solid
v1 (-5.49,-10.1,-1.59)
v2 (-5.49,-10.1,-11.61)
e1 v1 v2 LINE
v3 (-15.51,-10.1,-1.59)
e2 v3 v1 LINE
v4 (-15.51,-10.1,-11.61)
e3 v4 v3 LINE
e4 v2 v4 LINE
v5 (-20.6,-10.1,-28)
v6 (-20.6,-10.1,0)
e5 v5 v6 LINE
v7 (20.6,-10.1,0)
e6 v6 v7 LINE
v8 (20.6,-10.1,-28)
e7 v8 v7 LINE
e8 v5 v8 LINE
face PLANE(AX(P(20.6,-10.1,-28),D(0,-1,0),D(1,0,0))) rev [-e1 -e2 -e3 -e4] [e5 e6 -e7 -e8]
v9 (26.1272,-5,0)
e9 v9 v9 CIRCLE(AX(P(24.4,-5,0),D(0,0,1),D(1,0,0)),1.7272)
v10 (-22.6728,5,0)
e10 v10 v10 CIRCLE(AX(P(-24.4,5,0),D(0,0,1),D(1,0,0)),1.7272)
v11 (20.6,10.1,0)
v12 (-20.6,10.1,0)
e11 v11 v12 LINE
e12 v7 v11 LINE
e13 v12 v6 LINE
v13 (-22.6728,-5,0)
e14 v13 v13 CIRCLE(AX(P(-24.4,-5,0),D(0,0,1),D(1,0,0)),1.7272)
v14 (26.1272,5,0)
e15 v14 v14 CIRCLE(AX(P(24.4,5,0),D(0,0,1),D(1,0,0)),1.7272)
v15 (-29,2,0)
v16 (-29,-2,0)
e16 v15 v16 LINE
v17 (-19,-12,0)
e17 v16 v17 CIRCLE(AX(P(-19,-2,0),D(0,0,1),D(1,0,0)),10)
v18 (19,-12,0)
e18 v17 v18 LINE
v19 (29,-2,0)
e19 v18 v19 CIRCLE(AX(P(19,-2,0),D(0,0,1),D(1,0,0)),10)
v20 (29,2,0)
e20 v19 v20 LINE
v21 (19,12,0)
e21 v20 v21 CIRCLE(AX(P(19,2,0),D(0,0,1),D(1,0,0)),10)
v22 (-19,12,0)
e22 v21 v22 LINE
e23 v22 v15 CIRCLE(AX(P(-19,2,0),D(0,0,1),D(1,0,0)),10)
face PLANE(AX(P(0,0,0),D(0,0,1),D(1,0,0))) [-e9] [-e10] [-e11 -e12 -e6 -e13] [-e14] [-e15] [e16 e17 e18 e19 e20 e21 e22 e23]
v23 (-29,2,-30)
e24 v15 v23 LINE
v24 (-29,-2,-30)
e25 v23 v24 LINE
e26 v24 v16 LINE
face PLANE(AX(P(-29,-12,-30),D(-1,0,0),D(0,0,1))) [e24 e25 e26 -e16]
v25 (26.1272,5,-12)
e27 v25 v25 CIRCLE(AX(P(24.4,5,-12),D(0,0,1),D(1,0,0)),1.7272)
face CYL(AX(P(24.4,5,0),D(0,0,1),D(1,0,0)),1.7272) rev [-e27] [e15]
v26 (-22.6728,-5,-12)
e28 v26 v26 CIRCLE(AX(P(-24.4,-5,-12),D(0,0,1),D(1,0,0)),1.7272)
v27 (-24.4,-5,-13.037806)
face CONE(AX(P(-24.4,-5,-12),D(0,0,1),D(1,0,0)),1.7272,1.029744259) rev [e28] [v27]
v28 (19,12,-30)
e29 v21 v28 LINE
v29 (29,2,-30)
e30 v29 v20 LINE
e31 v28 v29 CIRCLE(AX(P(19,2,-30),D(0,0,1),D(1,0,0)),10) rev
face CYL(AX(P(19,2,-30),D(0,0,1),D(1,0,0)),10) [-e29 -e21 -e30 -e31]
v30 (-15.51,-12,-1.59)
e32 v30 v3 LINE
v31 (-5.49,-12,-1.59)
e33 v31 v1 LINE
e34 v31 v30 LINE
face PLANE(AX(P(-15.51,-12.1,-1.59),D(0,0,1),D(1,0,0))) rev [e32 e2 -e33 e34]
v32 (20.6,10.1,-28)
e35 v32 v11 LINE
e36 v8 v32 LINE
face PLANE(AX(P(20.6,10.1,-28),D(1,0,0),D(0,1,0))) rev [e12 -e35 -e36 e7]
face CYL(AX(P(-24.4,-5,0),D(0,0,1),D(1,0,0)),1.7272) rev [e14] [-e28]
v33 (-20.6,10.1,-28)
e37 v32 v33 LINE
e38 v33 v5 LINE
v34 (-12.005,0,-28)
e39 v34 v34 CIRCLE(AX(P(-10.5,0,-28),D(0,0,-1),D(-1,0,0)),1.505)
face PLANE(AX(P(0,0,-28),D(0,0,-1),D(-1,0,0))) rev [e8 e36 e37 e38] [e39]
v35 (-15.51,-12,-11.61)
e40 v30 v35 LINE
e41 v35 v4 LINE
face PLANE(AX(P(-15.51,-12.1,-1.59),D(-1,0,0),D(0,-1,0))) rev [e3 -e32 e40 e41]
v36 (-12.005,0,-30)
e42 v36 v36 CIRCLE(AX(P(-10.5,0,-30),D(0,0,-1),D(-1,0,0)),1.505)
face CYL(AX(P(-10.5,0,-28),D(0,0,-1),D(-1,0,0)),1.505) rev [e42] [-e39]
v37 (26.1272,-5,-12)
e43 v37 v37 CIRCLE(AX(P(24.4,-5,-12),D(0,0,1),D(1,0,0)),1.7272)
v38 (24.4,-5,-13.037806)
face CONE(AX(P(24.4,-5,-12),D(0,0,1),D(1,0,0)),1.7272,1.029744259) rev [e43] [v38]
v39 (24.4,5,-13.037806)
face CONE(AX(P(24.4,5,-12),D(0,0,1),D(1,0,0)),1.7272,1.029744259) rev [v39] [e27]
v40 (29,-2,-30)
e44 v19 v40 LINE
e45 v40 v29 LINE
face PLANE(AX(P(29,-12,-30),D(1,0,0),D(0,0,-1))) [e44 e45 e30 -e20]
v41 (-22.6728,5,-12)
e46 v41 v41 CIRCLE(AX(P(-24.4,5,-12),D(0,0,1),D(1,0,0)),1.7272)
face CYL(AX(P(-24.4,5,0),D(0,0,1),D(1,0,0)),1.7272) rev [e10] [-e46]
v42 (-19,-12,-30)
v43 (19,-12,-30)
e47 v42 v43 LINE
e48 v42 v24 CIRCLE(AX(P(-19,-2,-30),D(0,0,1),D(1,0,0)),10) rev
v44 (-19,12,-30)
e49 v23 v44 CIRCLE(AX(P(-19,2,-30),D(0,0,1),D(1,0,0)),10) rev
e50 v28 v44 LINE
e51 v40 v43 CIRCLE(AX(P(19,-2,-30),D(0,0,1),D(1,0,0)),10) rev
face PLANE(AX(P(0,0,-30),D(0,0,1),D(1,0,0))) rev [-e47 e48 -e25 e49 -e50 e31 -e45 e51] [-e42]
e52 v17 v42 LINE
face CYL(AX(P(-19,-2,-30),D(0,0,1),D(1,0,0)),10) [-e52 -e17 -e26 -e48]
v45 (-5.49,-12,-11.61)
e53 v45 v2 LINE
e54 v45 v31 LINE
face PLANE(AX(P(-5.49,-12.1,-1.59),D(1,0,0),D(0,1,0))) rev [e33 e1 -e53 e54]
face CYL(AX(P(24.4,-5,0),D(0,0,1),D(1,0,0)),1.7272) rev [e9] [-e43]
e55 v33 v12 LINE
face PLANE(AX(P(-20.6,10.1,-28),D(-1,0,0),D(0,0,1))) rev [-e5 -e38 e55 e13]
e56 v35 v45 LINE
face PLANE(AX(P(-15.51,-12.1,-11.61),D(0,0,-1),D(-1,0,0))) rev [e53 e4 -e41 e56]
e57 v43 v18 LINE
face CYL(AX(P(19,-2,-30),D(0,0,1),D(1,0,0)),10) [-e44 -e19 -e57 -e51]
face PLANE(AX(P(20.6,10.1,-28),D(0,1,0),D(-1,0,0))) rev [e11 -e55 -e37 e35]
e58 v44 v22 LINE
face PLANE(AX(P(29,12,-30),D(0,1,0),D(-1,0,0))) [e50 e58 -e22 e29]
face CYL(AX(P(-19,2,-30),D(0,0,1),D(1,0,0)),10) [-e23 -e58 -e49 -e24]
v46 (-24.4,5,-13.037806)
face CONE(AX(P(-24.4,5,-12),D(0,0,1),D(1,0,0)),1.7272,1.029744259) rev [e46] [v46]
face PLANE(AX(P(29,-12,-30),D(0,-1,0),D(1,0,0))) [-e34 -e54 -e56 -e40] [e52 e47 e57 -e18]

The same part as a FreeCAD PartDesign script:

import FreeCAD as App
import Part
import Sketcher
from FreeCAD import Vector


def edges_at(feature, points):
    """Names of the edges that pass closest to the given points."""
    edges = feature.Shape.Edges
    near = lambda p: min(range(len(edges)), key=lambda i: edges[i].distToShape(Part.Vertex(*p))[0])
    return sorted({f"Edge{near(p) + 1}" for p in points})

doc = App.newDocument("Part")
body = doc.addObject("PartDesign::Body", "Body")

# Sketch on XY plane
sketch1 = doc.addObject("Sketcher::SketchObject", "Sketch")
body.addObject(sketch1)
sketch1.AttachmentSupport = (doc.XY_Plane, [""])
sketch1.MapMode = "FlatFace"
sketch1.addGeometry([
    Part.LineSegment(Vector(-29, 12, 0), Vector(-29, -12, 0)),
    Part.LineSegment(Vector(-29, -12, 0), Vector(29, -12, 0)),
    Part.LineSegment(Vector(29, -12, 0), Vector(29, 12, 0)),
    Part.LineSegment(Vector(29, 12, 0), Vector(-29, 12, 0)),
], False)
sketch1.addConstraint([
    Sketcher.Constraint("Coincident", 0, 2, 1, 1),
    Sketcher.Constraint("Coincident", 1, 2, 2, 1),
    Sketcher.Constraint("Coincident", 2, 2, 3, 1),
    Sketcher.Constraint("Coincident", 3, 2, 0, 1),
    Sketcher.Constraint("Vertical", 0),
    Sketcher.Constraint("Horizontal", 1),
    Sketcher.Constraint("Vertical", 2),
    Sketcher.Constraint("Horizontal", 3),
    Sketcher.Constraint("Symmetric", 0, 2, 2, 2, -1, 1),
    Sketcher.Constraint("DistanceX", 1, 1, 1, 2, 58.0),
    Sketcher.Constraint("DistanceY", 0, 2, 0, 1, 24.0),
])
pad1 = doc.addObject("PartDesign::Pad", "Pad")
body.addObject(pad1)
pad1.Profile = sketch1
pad1.Length = 30
pad1.Reversed = True

# Sketch on XY plane
sketch2 = doc.addObject("Sketcher::SketchObject", "Sketch001")
body.addObject(sketch2)
sketch2.AttachmentSupport = (doc.XY_Plane, [""])
sketch2.MapMode = "FlatFace"
sketch2.addGeometry([
    Part.Circle(Vector(24.4, -5, 0), Vector(0, 0, 1), 1.7),
    Part.Circle(Vector(24.4, 5, 0), Vector(0, 0, 1), 1.7),
    Part.Circle(Vector(-24.4, -5, 0), Vector(0, 0, 1), 1.7),
    Part.Circle(Vector(-24.4, 5, 0), Vector(0, 0, 1), 1.7),
], False)
sketch2.addConstraint([
    Sketcher.Constraint("Equal", 0, 1),
    Sketcher.Constraint("Equal", 1, 2),
    Sketcher.Constraint("Equal", 2, 3),
    Sketcher.Constraint("Symmetric", 1, 3, 2, 3, -1, 1),
    Sketcher.Constraint("Symmetric", 0, 3, 3, 3, -1, 1),
    Sketcher.Constraint("Symmetric", 0, 3, 2, 3, -2),
    Sketcher.Constraint("DistanceY", 0, 3, -1, 1, 5.0),
    Sketcher.Constraint("Diameter", 0, 3.4544),
    Sketcher.Constraint("DistanceX", -1, 1, 0, 3, 24.4),
])
doc.recompute()
hole = doc.addObject("PartDesign::Hole", "Hole")
body.addObject(hole)
hole.Profile = sketch2
hole.ThreadType = "None"
hole.Diameter = 3.4544
hole.DepthType = "Dimension"
hole.Depth = 12
hole.DrillPoint = "Angled"
hole.DrillPointAngle = 118

# Sketch on XY plane
sketch3 = doc.addObject("Sketcher::SketchObject", "Sketch002")
body.addObject(sketch3)
sketch3.AttachmentSupport = (doc.XY_Plane, [""])
sketch3.MapMode = "FlatFace"
sketch3.addGeometry([
    Part.LineSegment(Vector(-21, 10, 0), Vector(-21, -10, 0)),
    Part.LineSegment(Vector(-21, -10, 0), Vector(21, -10, 0)),
    Part.LineSegment(Vector(21, -10, 0), Vector(21, 10, 0)),
    Part.LineSegment(Vector(21, 10, 0), Vector(-21, 10, 0)),
], False)
sketch3.addConstraint([
    Sketcher.Constraint("Coincident", 0, 2, 1, 1),
    Sketcher.Constraint("Coincident", 1, 2, 2, 1),
    Sketcher.Constraint("Coincident", 2, 2, 3, 1),
    Sketcher.Constraint("Coincident", 3, 2, 0, 1),
    Sketcher.Constraint("Vertical", 0),
    Sketcher.Constraint("Horizontal", 1),
    Sketcher.Constraint("Vertical", 2),
    Sketcher.Constraint("Horizontal", 3),
    Sketcher.Constraint("Symmetric", 0, 2, 2, 2, -1, 1),
    Sketcher.Constraint("DistanceX", 1, 1, 1, 2, 41.2),
    Sketcher.Constraint("DistanceY", 0, 2, 0, 1, 20.2),
])
pocket1 = doc.addObject("PartDesign::Pocket", "Pocket")
body.addObject(pocket1)
pocket1.Profile = sketch3
pocket1.Length = 28

# Sketch on XY plane
sketch4 = doc.addObject("Sketcher::SketchObject", "Sketch003")
body.addObject(sketch4)
sketch4.AttachmentSupport = (doc.XY_Plane, [""])
sketch4.MapMode = "FlatFace"
sketch4.AttachmentOffset = App.Placement(Vector(0, 0, -30), App.Rotation())
sketch4.addGeometry(Part.Circle(Vector(-10.5, 0, 0), Vector(0, 0, 1), 1.5), False)
sketch4.addConstraint([
    Sketcher.Constraint("PointOnObject", 0, 3, -1),
    Sketcher.Constraint("Diameter", 0, 3.01),
    Sketcher.Constraint("DistanceX", 0, 3, -1, 1, 10.5),
])
pocket2 = doc.addObject("PartDesign::Pocket", "Pocket001")
body.addObject(pocket2)
pocket2.Profile = sketch4
pocket2.Length = 2
pocket2.Reversed = True

# Sketch on XZ plane
sketch5 = doc.addObject("Sketcher::SketchObject", "Sketch004")
body.addObject(sketch5)
sketch5.AttachmentSupport = (doc.XZ_Plane, [""])
sketch5.MapMode = "FlatFace"
sketch5.AttachmentOffset = App.Placement(Vector(0, 0, 10.1), App.Rotation())
sketch5.addGeometry([
    Part.LineSegment(Vector(-16, -12, 0), Vector(-16, -2, 0)),
    Part.LineSegment(Vector(-16, -2, 0), Vector(-5, -2, 0)),
    Part.LineSegment(Vector(-5, -2, 0), Vector(-5, -12, 0)),
    Part.LineSegment(Vector(-5, -12, 0), Vector(-16, -12, 0)),
], False)
sketch5.addConstraint([
    Sketcher.Constraint("Coincident", 0, 2, 1, 1),
    Sketcher.Constraint("Coincident", 1, 2, 2, 1),
    Sketcher.Constraint("Coincident", 2, 2, 3, 1),
    Sketcher.Constraint("Coincident", 3, 2, 0, 1),
    Sketcher.Constraint("Vertical", 0),
    Sketcher.Constraint("Horizontal", 1),
    Sketcher.Constraint("Vertical", 2),
    Sketcher.Constraint("Horizontal", 3),
    Sketcher.Constraint("Equal", 3, 0),
    Sketcher.Constraint("DistanceX", 1, 1, 1, 2, 10.02),
    Sketcher.Constraint("DistanceX", 0, 2, -1, 1, 15.51),
    Sketcher.Constraint("DistanceY", 0, 2, -1, 1, 1.59),
])
pocket3 = doc.addObject("PartDesign::Pocket", "Pocket002")
body.addObject(pocket3)
pocket3.Profile = sketch5
pocket3.Length = 2
pocket3.Reversed = True
doc.recompute()

fillet = doc.addObject("PartDesign::Fillet", "Fillet")
body.addObject(fillet)
fillet.Base = (pocket3, edges_at(pocket3, [(-29, 12, -15)]))
fillet.Radius = 10
doc.recompute()

fillet2 = doc.addObject("PartDesign::Fillet", "Fillet001")
body.addObject(fillet2)
fillet2.Base = (fillet, edges_at(fillet, [(29, 12, -15)]))
fillet2.Radius = 10
doc.recompute()

fillet3 = doc.addObject("PartDesign::Fillet", "Fillet002")
body.addObject(fillet3)
fillet3.Base = (fillet2, edges_at(fillet2, [(29, -12, -15)]))
fillet3.Radius = 10
doc.recompute()

fillet4 = doc.addObject("PartDesign::Fillet", "Fillet003")
body.addObject(fillet4)
fillet4.Base = (fillet3, edges_at(fillet3, [(-29, -12, -15)]))
fillet4.Radius = 10

doc.recompute()
